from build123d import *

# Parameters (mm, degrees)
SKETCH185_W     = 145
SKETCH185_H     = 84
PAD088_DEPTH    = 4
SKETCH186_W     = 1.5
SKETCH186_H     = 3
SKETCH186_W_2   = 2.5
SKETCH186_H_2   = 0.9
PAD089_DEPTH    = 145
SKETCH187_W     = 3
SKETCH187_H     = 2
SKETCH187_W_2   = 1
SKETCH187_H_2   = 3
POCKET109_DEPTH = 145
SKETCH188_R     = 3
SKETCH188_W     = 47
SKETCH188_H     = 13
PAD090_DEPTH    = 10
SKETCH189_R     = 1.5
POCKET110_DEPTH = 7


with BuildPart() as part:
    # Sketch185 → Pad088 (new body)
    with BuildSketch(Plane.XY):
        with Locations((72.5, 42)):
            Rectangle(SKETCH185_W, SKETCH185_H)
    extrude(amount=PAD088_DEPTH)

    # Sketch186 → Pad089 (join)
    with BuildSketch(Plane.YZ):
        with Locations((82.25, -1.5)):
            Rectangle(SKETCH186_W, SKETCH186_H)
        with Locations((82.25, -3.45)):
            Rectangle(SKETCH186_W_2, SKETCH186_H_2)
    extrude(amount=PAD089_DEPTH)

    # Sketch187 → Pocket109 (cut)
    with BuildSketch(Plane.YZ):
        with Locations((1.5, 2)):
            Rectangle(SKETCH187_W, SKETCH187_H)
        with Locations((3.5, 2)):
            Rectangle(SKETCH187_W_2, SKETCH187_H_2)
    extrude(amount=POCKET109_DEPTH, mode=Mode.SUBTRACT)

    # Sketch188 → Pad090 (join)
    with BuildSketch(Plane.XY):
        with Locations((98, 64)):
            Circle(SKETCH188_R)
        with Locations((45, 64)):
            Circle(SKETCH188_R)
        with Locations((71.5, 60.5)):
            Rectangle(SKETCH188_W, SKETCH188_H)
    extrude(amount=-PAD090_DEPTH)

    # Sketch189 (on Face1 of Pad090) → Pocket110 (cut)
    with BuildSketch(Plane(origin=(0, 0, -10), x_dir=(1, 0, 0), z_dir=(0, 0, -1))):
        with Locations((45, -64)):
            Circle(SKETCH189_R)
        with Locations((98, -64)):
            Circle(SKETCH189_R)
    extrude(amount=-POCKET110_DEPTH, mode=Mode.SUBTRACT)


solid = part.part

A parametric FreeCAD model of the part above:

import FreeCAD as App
import Part
import Sketcher
from FreeCAD import Vector

doc = App.newDocument("Part")
body = doc.addObject("PartDesign::Body", "Body")

# Sketch on XY plane
sketch1 = body.newObject("Sketcher::SketchObject", "Sketch")
sketch1.AttachmentSupport = (doc.getObject("XY_Plane"), [""])
sketch1.MapMode = "FlatFace"
sketch1.addGeometry([
    Part.LineSegment(Vector(0, 84, 0), Vector(0, 0, 0)),
    Part.LineSegment(Vector(0, 0, 0), Vector(145, 0, 0)),
    Part.LineSegment(Vector(145, 0, 0), Vector(145, 84, 0)),
    Part.LineSegment(Vector(145, 84, 0), Vector(0, 84, 0)),
], False)
sketch1.addConstraint([
    Sketcher.Constraint("Coincident", 0, 2, 1, 1),
    Sketcher.Constraint("Coincident", 1, 2, 2, 1),
    Sketcher.Constraint("Coincident", 2, 2, 3, 1),
    Sketcher.Constraint("Coincident", 3, 2, 0, 1),
    Sketcher.Constraint("Vertical", 0),
    Sketcher.Constraint("Horizontal", 1),
    Sketcher.Constraint("Vertical", 2),
    Sketcher.Constraint("Horizontal", 3),
    Sketcher.Constraint("Coincident", 0, 2, -1, 1),
    Sketcher.Constraint("DistanceX", 1, 1, 1, 2, 145.0),
    Sketcher.Constraint("DistanceY", 0, 2, 0, 1, 84.0),
])
pad1 = body.newObject("PartDesign::Pad", "Pad")
pad1.Profile = sketch1
pad1.Length = 4

# Sketch on YZ plane
sketch2 = body.newObject("Sketcher::SketchObject", "Sketch001")
sketch2.AttachmentSupport = (doc.getObject("YZ_Plane"), [""])
sketch2.MapMode = "FlatFace"
sketch2.addGeometry([
    Part.LineSegment(Vector(81.5, 0, 0), Vector(81.5, -3, 0)),  # 0
    Part.LineSegment(Vector(81.5, -3, 0), Vector(81, -3, 0)),  # 1
    Part.LineSegment(Vector(81, -3, 0), Vector(81, -3.9, 0)),  # 2
    Part.LineSegment(Vector(81, -3.9, 0), Vector(83.5, -3.9, 0)),  # 3
    Part.LineSegment(Vector(83.5, -3.9, 0), Vector(83.5, -3, 0)),  # 4
    Part.LineSegment(Vector(83.5, -3, 0), Vector(83, -3, 0)),  # 5
    Part.LineSegment(Vector(83, -3, 0), Vector(83, 0, 0)),  # 6
    Part.LineSegment(Vector(83, 0, 0), Vector(81.5, 0, 0)),  # 7
], False)
sketch2.addConstraint([
    Sketcher.Constraint("Coincident", 0, 2, 1, 1),
    Sketcher.Constraint("Coincident", 1, 2, 2, 1),
    Sketcher.Constraint("Coincident", 2, 2, 3, 1),
    Sketcher.Constraint("Coincident", 3, 2, 4, 1),
    Sketcher.Constraint("Coincident", 4, 2, 5, 1),
    Sketcher.Constraint("Coincident", 5, 2, 6, 1),
    Sketcher.Constraint("Coincident", 6, 2, 7, 1),
    Sketcher.Constraint("Coincident", 7, 2, 0, 1),
    Sketcher.Constraint("Vertical", 0),
    Sketcher.Constraint("Horizontal", 1),
    Sketcher.Constraint("Vertical", 2),
    Sketcher.Constraint("Horizontal", 3),
    Sketcher.Constraint("Vertical", 4),
    Sketcher.Constraint("Horizontal", 5),
    Sketcher.Constraint("Vertical", 6),
    Sketcher.Constraint("Horizontal", 7),
    Sketcher.Constraint("PointOnObject", 6, 2, -1),
    Sketcher.Constraint("Horizontal", 1, 2, 4, 2),
    Sketcher.Constraint("Equal", 1, 5),
    Sketcher.Constraint("DistanceY", 0, 2, 0, 1, 3.0),
    Sketcher.Constraint("DistanceX", 1, 2, 1, 1, 0.5),
    Sketcher.Constraint("DistanceX", 3, 1, 3, 2, 2.5),
    Sketcher.Constraint("DistanceY", 2, 2, 2, 1, 0.9),
    Sketcher.Constraint("DistanceX", -1, 1, 1, 2, 81.0),
])
pad2 = body.newObject("PartDesign::Pad", "Pad001")
pad2.Profile = sketch2
pad2.Length = 145

# Sketch on YZ plane
sketch3 = body.newObject("Sketcher::SketchObject", "Sketch002")
sketch3.AttachmentSupport = (doc.getObject("YZ_Plane"), [""])
sketch3.MapMode = "FlatFace"
sketch3.addGeometry([
    Part.LineSegment(Vector(0, 3, 0), Vector(0, 1, 0)),  # 0
    Part.LineSegment(Vector(0, 1, 0), Vector(3, 1, 0)),  # 1
    Part.LineSegment(Vector(3, 1, 0), Vector(3, 0.5, 0)),  # 2
    Part.LineSegment(Vector(3, 0.5, 0), Vector(4, 0.5, 0)),  # 3
    Part.LineSegment(Vector(4, 0.5, 0), Vector(4, 3.5, 0)),  # 4
    Part.LineSegment(Vector(4, 3.5, 0), Vector(3, 3.5, 0)),  # 5
    Part.LineSegment(Vector(3, 3.5, 0), Vector(3, 3, 0)),  # 6
    Part.LineSegment(Vector(3, 3, 0), Vector(0, 3, 0)),  # 7
], False)
sketch3.addConstraint([
    Sketcher.Constraint("Coincident", 0, 2, 1, 1),
    Sketcher.Constraint("Coincident", 1, 2, 2, 1),
    Sketcher.Constraint("Coincident", 2, 2, 3, 1),
    Sketcher.Constraint("Coincident", 3, 2, 4, 1),
    Sketcher.Constraint("Coincident", 4, 2, 5, 1),
    Sketcher.Constraint("Coincident", 5, 2, 6, 1),
    Sketcher.Constraint("Coincident", 6, 2, 7, 1),
    Sketcher.Constraint("Coincident", 7, 2, 0, 1),
    Sketcher.Constraint("Vertical", 0),
    Sketcher.Constraint("Horizontal", 1),
    Sketcher.Constraint("Vertical", 2),
    Sketcher.Constraint("Horizontal", 3),
    Sketcher.Constraint("Vertical", 4),
    Sketcher.Constraint("Horizontal", 5),
    Sketcher.Constraint("Vertical", 6),
    Sketcher.Constraint("Horizontal", 7),
    Sketcher.Constraint("PointOnObject", 0, 2, -2),
    Sketcher.Constraint("Vertical", 2, 2, 5, 2),
    Sketcher.Constraint("Equal", 7, 4),
    Sketcher.Constraint("Equal", 2, 6),
    Sketcher.Constraint("DistanceX", 1, 1, 1, 2, 3.0),
    Sketcher.Constraint("DistanceX", 3, 1, 3, 2, 1.0),
    Sketcher.Constraint("DistanceY", 0, 2, 0, 1, 2.0),
    Sketcher.Constraint("DistanceY", -1, 1, 0, 2, 1.0),
])
pocket1 = body.newObject("PartDesign::Pocket", "Pocket")
pocket1.Profile = sketch3
pocket1.Length = 145
pocket1.Reversed = True

# Sketch on XY plane
sketch4 = body.newObject("Sketcher::SketchObject", "Sketch003")
sketch4.AttachmentSupport = (doc.getObject("XY_Plane"), [""])
sketch4.MapMode = "FlatFace"
sketch4.addGeometry([
    Part.Circle(Vector(98, 64, 0), Vector(0, 0, 1), 3),  # 0
    Part.Circle(Vector(45, 64, 0), Vector(0, 0, 1), 3),  # 1
    Part.LineSegment(Vector(48, 64, 0), Vector(48, 54, 0)),  # 2
    Part.LineSegment(Vector(48, 54, 0), Vector(95, 54, 0)),  # 3
    Part.LineSegment(Vector(95, 54, 0), Vector(95, 64, 0)),  # 4
    Part.LineSegment(Vector(95, 64, 0), Vector(95, 67, 0)),  # 5
    Part.LineSegment(Vector(95, 67, 0), Vector(48, 67, 0)),  # 6
    Part.LineSegment(Vector(48, 67, 0), Vector(48, 64, 0)),  # 7
], False)
sketch4.addConstraint([
    Sketcher.Constraint("Coincident", 2, 2, 3, 1),
    Sketcher.Constraint("Coincident", 3, 2, 4, 1),
    Sketcher.Constraint("Coincident", 4, 2, 5, 1),
    Sketcher.Constraint("Coincident", 5, 2, 6, 1),
    Sketcher.Constraint("Coincident", 6, 2, 7, 1),
    Sketcher.Constraint("Coincident", 7, 2, 2, 1),
    Sketcher.Constraint("Vertical", 2),
    Sketcher.Constraint("Horizontal", 3),
    Sketcher.Constraint("Vertical", 4),
    Sketcher.Constraint("Vertical", 5),
    Sketcher.Constraint("Horizontal", 6),
    Sketcher.Constraint("Vertical", 7),
    Sketcher.Constraint("Equal", 0, 1),
    Sketcher.Constraint("Horizontal", 0, 3, 1, 3),
    Sketcher.Constraint("Horizontal", 1, 3, 4, 2),
    Sketcher.Constraint("Horizontal", 4, 2, 7, 2),
    Sketcher.Constraint("Diameter", 0, 6.0),
    Sketcher.Constraint("DistanceX", 3, 1, 3, 2, 47.0),
    Sketcher.Constraint("DistanceY", 2, 2, 2, 1, 10.0),
    Sketcher.Constraint("DistanceY", 5, 1, 5, 2, 3.0),
    Sketcher.Constraint("DistanceX", -1, 1, 0, 3, 98.0),
    Sketcher.Constraint("DistanceY", -1, 1, 0, 3, 64.0),
    Sketcher.Constraint("DistanceX", -1, 1, 1, 3, 45.0),
    Sketcher.Constraint("DistanceX", -1, 1, 2, 2, 48.0),
])
pad3 = body.newObject("PartDesign::Pad", "Pad002")
pad3.Profile = sketch4
pad3.Length = 10
pad3.Reversed = True

# Sketch on XY plane
sketch5 = body.newObject("Sketcher::SketchObject", "Sketch004")
sketch5.AttachmentSupport = (doc.getObject("XY_Plane"), [""])
sketch5.MapMode = "FlatFace"
sketch5.AttachmentOffset = App.Placement(Vector(0, 0, -10), App.Rotation())
sketch5.addGeometry([
    Part.Circle(Vector(45, 64, 0), Vector(0, 0, 1), 1.5),
    Part.Circle(Vector(98, 64, 0), Vector(0, 0, 1), 1.5),
], False)
sketch5.addConstraint([
    Sketcher.Constraint("Equal", 0, 1),
    Sketcher.Constraint("Horizontal", 0, 3, 1, 3),
    Sketcher.Constraint("Diameter", 0, 3.0),
    Sketcher.Constraint("DistanceX", -1, 1, 0, 3, 45.0),
    Sketcher.Constraint("DistanceY", -1, 1, 0, 3, 64.0),
    Sketcher.Constraint("DistanceX", -1, 1, 1, 3, 98.0),
])
pocket2 = body.newObject("PartDesign::Pocket", "Pocket001")
pocket2.Profile = sketch5
pocket2.Length = 7
pocket2.Reversed = True

doc.recompute()
